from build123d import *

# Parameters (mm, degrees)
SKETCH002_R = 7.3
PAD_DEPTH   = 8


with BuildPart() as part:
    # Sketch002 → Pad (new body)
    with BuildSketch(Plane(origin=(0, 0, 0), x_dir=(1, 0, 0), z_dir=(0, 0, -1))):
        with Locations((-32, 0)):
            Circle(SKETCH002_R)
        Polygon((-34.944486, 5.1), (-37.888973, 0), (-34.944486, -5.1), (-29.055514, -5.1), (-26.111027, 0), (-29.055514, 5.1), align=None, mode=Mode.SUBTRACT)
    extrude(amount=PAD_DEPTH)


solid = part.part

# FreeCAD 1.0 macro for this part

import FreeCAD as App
import Part
import Sketcher
Q = App.Units.Quantity

doc = App.newDocument("Part")
body = doc.addObject("PartDesign::Body", "Body")

# Sketch on XY plane
sketch1 = doc.addObject("Sketcher::SketchObject", "Sketch")
body.addObject(sketch1)
sketch1.AttachmentSupport = (doc.XY_Plane, [""])
sketch1.MapMode = "FlatFace"
sketch1.addGeometry([
    Part.Circle(App.Vector(-32, 0, 0), App.Vector(0, 0, 1), 7),  # 0
    Part.LineSegment(App.Vector(-38, 0, 0), App.Vector(-35, -5, 0)),  # 1
    Part.LineSegment(App.Vector(-35, -5, 0), App.Vector(-29, -5, 0)),  # 2
    Part.LineSegment(App.Vector(-29, -5, 0), App.Vector(-26, 0, 0)),  # 3
    Part.LineSegment(App.Vector(-26, 0, 0), App.Vector(-29, 5, 0)),  # 4
    Part.LineSegment(App.Vector(-29, 5, 0), App.Vector(-35, 5, 0)),  # 5
    Part.LineSegment(App.Vector(-35, 5, 0), App.Vector(-38, 0, 0)),  # 6
], False)
sketch1.addConstraint([
    Sketcher.Constraint("Coincident", 1, 2, 2, 1),
    Sketcher.Constraint("Coincident", 2, 2, 3, 1),
    Sketcher.Constraint("Coincident", 3, 2, 4, 1),
    Sketcher.Constraint("Coincident", 4, 2, 5, 1),
    Sketcher.Constraint("Coincident", 5, 2, 6, 1),
    Sketcher.Constraint("Coincident", 6, 2, 1, 1),
    Sketcher.Constraint("Horizontal", 2),
    Sketcher.Constraint("Horizontal", 5),
    Sketcher.Constraint("Symmetric", 2, 2, 4, 2, -1),
    Sketcher.Constraint("PointOnObject", 0, 3, -1),
    Sketcher.Constraint("PointOnObject", 3, 2, -1),
    Sketcher.Constraint("PointOnObject", 6, 2, -1),
    Sketcher.Constraint("Parallel", 1, 4),
    Sketcher.Constraint("Parallel", 3, 6),
    Sketcher.Constraint("Diameter", 0, Q("14.6 mm")),
    Sketcher.Constraint("Angle", 1, Q("-59.999995 deg")),
    Sketcher.Constraint("DistanceX", 0, 3, -1, 1, Q("32 mm")),
    Sketcher.Constraint("DistanceY", 1, 2, -1, 1, Q("5.1 mm")),
    Sketcher.Constraint("DistanceX", 2, 1, 2, 2, Q("5.888972 mm")),
    Sketcher.Constraint("DistanceX", 1, 2, -1, 1, Q("34.944486 mm")),
])
pad1 = doc.addObject("PartDesign::Pad", "Pad")
body.addObject(pad1)
pad1.Profile = sketch1
pad1.Length = 8
pad1.Reversed = True

doc.recompute()
